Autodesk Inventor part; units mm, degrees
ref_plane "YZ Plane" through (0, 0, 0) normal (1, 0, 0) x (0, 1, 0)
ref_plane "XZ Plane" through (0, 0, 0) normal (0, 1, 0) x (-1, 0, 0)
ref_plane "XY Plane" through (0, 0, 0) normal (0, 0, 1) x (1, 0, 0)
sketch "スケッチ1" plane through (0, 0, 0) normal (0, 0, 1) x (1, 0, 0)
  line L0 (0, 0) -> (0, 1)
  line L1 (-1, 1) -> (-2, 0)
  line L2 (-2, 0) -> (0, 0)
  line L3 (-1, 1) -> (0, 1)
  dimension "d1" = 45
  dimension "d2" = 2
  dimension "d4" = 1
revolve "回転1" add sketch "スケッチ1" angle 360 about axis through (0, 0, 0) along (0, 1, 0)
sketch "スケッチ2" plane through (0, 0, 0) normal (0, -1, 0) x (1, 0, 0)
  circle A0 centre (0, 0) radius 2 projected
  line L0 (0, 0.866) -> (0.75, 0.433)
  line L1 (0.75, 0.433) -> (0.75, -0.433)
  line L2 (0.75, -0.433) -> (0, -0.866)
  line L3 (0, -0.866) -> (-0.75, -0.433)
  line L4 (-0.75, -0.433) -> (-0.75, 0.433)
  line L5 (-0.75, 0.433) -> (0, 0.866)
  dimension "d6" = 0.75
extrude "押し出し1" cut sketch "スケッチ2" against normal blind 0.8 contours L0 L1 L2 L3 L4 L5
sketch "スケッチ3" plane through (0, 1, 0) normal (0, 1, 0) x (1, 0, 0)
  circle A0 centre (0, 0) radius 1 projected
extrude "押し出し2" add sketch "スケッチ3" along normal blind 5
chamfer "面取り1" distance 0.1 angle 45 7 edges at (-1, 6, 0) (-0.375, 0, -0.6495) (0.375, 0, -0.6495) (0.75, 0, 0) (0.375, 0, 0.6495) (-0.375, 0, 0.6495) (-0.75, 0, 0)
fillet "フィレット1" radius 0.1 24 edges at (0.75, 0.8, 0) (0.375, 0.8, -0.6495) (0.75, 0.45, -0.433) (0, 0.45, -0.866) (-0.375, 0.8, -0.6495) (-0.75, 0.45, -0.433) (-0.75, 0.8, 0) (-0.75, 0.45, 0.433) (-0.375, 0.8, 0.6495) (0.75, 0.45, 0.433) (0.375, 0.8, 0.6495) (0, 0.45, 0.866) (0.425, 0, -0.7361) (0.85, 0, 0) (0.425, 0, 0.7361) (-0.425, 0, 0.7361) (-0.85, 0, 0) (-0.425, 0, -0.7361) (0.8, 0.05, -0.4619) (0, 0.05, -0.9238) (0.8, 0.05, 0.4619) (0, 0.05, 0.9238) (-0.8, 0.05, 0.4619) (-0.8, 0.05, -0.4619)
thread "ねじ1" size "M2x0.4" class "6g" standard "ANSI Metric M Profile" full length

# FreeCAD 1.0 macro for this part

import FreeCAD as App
import Part
import Sketcher

V = App.Vector
Q = App.Units.Quantity


def edges_at(feature, points):
    """Names of the edges that pass closest to the given points."""
    edges = feature.Shape.Edges
    near = lambda p: min(range(len(edges)), key=lambda i: edges[i].distToShape(Part.Vertex(*p))[0])
    return sorted({f"Edge{near(p) + 1}" for p in points})

doc = App.newDocument("Part")
params = doc.addObject("Spreadsheet::Sheet", "Params")
for row, (alias, value) in enumerate([
    ("sketch1_width", "2 mm"),
    ("sketch1_width2", "1 mm"),
    ("revolution_angle", "360 deg"),
    ("pocket1_length", "0.8 mm"),
    ("sketch3_diameter", "2 mm"),
    ("pad1_length", "5 mm"),
    ("chamfer_size", "0.1 mm"),
    ("fillet_radius", "0.1 mm"),
], start=1):
    params.set(f"A{row}", alias)
    params.set(f"B{row}", "=" + value)
    params.setAlias(f"B{row}", alias)

body = doc.addObject("PartDesign::Body", "Body")

sketch1 = body.newObject("Sketcher::SketchObject", "Sketch")
sketch1.AttachmentSupport = (doc.getObject("XY_Plane"), [""])
sketch1.MapMode = "FlatFace"
sketch1.addGeometry([
    Part.LineSegment(V(-2, 0, 0), V(0, 0, 0)),
    Part.LineSegment(V(0, 0, 0), V(0, 1, 0)),
    Part.LineSegment(V(0, 1, 0), V(-1, 1, 0)),
    Part.LineSegment(V(-1, 1, 0), V(-2, 0, 0)),
], False)
sketch1.addConstraint([
    Sketcher.Constraint("Coincident", 0, 2, 1, 1),
    Sketcher.Constraint("Coincident", 1, 2, 2, 1),
    Sketcher.Constraint("Coincident", 2, 2, 3, 1),
    Sketcher.Constraint("Coincident", 3, 2, 0, 1),
    Sketcher.Constraint("Horizontal", 0),
    Sketcher.Constraint("Vertical", 1),
    Sketcher.Constraint("Horizontal", 2),
    Sketcher.Constraint("Coincident", 0, 2, -1, 1),
    Sketcher.Constraint("Equal", 2, 1),
    Sketcher.Constraint("DistanceX", 0, 1, 0, 2, Q("2 mm")),
    Sketcher.Constraint("DistanceX", 2, 2, 2, 1, Q("1 mm")),
])
sketch1.setExpression("Constraints[9]", "Params.sketch1_width")
sketch1.setExpression("Constraints[10]", "Params.sketch1_width2")
revolution = body.newObject("PartDesign::Revolution", "Revolution")
revolution.Profile = sketch1
revolution.ReferenceAxis = (sketch1, ["V_Axis"])
revolution.setExpression("Angle", "Params.revolution_angle")

sketch2 = body.newObject("Sketcher::SketchObject", "Sketch001")
sketch2.AttachmentSupport = (doc.getObject("XZ_Plane"), [""])
sketch2.MapMode = "FlatFace"
sketch2.addGeometry([
    Part.LineSegment(V(0.8, 0.4, 0), V(0, 0.9, 0)),
    Part.LineSegment(V(0, 0.9, 0), V(-0.8, 0.4, 0)),
    Part.LineSegment(V(-0.8, 0.4, 0), V(-0.8, -0.4, 0)),
    Part.LineSegment(V(-0.8, -0.4, 0), V(0, -0.9, 0)),
    Part.LineSegment(V(0, -0.9, 0), V(0.8, -0.4, 0)),
    Part.LineSegment(V(0.8, -0.4, 0), V(0.8, 0.4, 0)),
], False)
sketch2.addConstraint([
    Sketcher.Constraint("Coincident", 0, 2, 1, 1),
    Sketcher.Constraint("Coincident", 1, 2, 2, 1),
    Sketcher.Constraint("Coincident", 2, 2, 3, 1),
    Sketcher.Constraint("Coincident", 3, 2, 4, 1),
    Sketcher.Constraint("Coincident", 4, 2, 5, 1),
    Sketcher.Constraint("Coincident", 5, 2, 0, 1),
    Sketcher.Constraint("Vertical", 2),
    Sketcher.Constraint("Vertical", 5),
    Sketcher.Constraint("Symmetric", 0, 2, 3, 2, -1, 1),
    Sketcher.Constraint("Symmetric", 1, 2, 4, 2, -1, 1),
    Sketcher.Constraint("PointOnObject", 0, 2, -2),
    Sketcher.Constraint("Parallel", 0, 3),
    Sketcher.Constraint("Horizontal", 2, 2, 4, 2),
    Sketcher.Constraint("DistanceX", 1, 2, -1, 1, Q("0.75 mm")),
    Sketcher.Constraint("Angle", 0, Q("150.0007 deg")),
    Sketcher.Constraint("DistanceY", 2, 2, 2, 1, Q("0.866 mm")),
])
pocket1 = body.newObject("PartDesign::Pocket", "Pocket")
pocket1.Profile = sketch2
pocket1.setExpression("Length", "Params.pocket1_length")

sketch3 = body.newObject("Sketcher::SketchObject", "Sketch002")
sketch3.AttachmentSupport = (doc.getObject("XZ_Plane"), [""])
sketch3.MapMode = "FlatFace"
sketch3.AttachmentOffset = App.Placement(V(0, 0, -1), App.Rotation())
sketch3.addGeometry(Part.Circle(V(0, 0, 0), V(0, 0, 1), 1), False)
sketch3.addConstraint([
    Sketcher.Constraint("Coincident", 0, 3, -1, 1),
    Sketcher.Constraint("Diameter", 0, Q("2 mm")),
])
sketch3.setExpression("Constraints[1]", "Params.sketch3_diameter")
pad1 = body.newObject("PartDesign::Pad", "Pad")
pad1.Profile = sketch3
pad1.setExpression("Length", "Params.pad1_length")
pad1.Reversed = True
doc.recompute()

chamfer = body.newObject("PartDesign::Chamfer", "Chamfer")
chamfer.Base = (pad1, edges_at(pad1, [
    (-1, 6, 0),
    (-0.375, 0, -0.649),
    (0.375, 0, -0.649),
    (0.75, 0, 0),
    (0.375, 0, 0.649),
    (-0.375, 0, 0.649),
    (-0.75, 0, 0),
]))
chamfer.setExpression("Size", "Params.chamfer_size")
doc.recompute()

fillet = body.newObject("PartDesign::Fillet", "Fillet")
fillet.Base = (chamfer, edges_at(chamfer, [
    (0.75, 0.8, 0),
    (0.375, 0.8, -0.649),
    (0.75, 0.45, -0.433),
    (0, 0.45, -0.866),
    (-0.375, 0.8, -0.649),
    (-0.75, 0.45, -0.433),
    (-0.75, 0.8, 0),
    (-0.75, 0.45, 0.433),
    (-0.375, 0.8, 0.649),
    (0.75, 0.45, 0.433),
    (0.375, 0.8, 0.649),
    (0, 0.45, 0.866),
    (0.425, 0, -0.736),
    (0.85, 0, 0),
    (0.425, 0, 0.736),
    (-0.425, 0, 0.736),
    (-0.85, 0, 0),
    (-0.425, 0, -0.736),
    (0.8, 0.05, -0.462),
    (0, 0.05, -0.924),
    (0.8, 0.05, 0.462),
    (0, 0.05, 0.924),
    (-0.8, 0.05, 0.462),
    (-0.8, 0.05, -0.462),
]))
fillet.setExpression("Radius", "Params.fillet_radius")

doc.recompute()
